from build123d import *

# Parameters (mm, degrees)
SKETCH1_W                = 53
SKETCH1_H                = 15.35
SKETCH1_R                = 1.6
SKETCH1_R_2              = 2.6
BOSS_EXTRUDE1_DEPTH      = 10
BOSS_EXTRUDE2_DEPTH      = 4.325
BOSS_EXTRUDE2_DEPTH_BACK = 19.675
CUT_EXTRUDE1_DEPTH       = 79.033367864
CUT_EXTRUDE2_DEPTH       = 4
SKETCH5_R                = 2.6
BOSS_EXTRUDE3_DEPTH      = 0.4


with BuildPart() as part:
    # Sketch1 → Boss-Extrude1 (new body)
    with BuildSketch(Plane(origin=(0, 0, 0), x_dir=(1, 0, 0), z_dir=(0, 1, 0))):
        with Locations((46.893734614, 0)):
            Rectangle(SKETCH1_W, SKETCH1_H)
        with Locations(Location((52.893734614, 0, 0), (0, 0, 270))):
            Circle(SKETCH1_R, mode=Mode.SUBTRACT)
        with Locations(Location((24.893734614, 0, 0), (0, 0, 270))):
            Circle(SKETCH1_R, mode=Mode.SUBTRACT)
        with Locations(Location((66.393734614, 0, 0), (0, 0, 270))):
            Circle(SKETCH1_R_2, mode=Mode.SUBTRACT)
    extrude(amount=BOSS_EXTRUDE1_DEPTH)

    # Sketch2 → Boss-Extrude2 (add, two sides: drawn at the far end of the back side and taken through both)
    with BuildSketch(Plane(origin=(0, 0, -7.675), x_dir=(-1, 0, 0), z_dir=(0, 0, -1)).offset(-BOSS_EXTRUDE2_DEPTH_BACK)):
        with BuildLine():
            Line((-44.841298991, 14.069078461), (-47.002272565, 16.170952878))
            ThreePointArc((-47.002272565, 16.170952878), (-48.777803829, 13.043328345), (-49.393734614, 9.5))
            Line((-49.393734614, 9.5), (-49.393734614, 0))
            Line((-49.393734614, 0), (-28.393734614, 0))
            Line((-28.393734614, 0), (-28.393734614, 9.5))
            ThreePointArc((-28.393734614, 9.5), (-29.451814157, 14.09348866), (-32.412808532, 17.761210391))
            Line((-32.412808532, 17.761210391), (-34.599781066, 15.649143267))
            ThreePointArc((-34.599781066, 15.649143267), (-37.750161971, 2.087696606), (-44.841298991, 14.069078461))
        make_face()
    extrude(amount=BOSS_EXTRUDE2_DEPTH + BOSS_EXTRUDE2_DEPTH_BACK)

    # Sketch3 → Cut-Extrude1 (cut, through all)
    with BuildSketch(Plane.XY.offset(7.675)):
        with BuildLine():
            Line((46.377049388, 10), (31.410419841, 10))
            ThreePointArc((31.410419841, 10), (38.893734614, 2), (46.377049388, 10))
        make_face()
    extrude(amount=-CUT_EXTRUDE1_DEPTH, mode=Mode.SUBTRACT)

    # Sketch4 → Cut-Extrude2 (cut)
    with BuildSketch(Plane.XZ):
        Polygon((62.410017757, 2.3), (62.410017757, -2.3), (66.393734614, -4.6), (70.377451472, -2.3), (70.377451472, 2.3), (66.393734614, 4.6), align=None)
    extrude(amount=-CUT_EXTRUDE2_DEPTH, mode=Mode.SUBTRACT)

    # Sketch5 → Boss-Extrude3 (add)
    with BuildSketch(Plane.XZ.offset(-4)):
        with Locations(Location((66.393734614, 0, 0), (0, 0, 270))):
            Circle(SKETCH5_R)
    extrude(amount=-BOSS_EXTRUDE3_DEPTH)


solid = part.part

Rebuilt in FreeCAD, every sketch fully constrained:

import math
import FreeCAD as App
import Part
import Sketcher
Q = App.Units.Quantity

doc = App.newDocument("Part")
params = doc.addObject("Spreadsheet::Sheet", "Params")
for row, (alias, value) in enumerate([
    ("sketch1_diameter", "3.2 mm"),
    ("sketch1_diameter2", "5.2 mm"),
    ("sketch1_width", "53 mm"),
    ("sketch1_height", "15.35 mm"),
    ("pad1_length", "10 mm"),
    ("sketch2_radius", "10.5 mm"),
    ("sketch2_radius2", "7.5 mm"),
    ("sketch2_height", "9.5 mm"),
    ("pad2_length", "4.325 mm"),
    ("pad2_length2", "19.675 mm"),
    ("sketch3_radius", "7.5 mm"),
    ("sketch4_height", "4.6 mm"),
    ("sketch4_length", "4.6 mm"),
    ("pocket2_length", "4 mm"),
    ("sketch5_diameter", "5.2 mm"),
    ("pad3_length", "0.4 mm"),
], start=1):
    params.set(f"A{row}", alias)
    params.set(f"B{row}", "=" + value)
    params.setAlias(f"B{row}", alias)

body = doc.addObject("PartDesign::Body", "Body")

sketch1 = doc.addObject("Sketcher::SketchObject", "Sketch")
body.addObject(sketch1)
sketch1.AttachmentSupport = (doc.XZ_Plane, [""])
sketch1.MapMode = "FlatFace"
sketch1.addGeometry(Part.LineSegment(App.Vector(20.4, -7.7, 0), App.Vector(20.4, 7.7, 0)), False)
sketch1.addGeometry(Part.LineSegment(App.Vector(20.4, 7.7, 0), App.Vector(73.4, 7.7, 0)), False)
sketch1.addGeometry(Part.LineSegment(App.Vector(73.4, 7.7, 0), App.Vector(73.4, -7.7, 0)), False)
sketch1.addGeometry(Part.LineSegment(App.Vector(73.4, -7.7, 0), App.Vector(20.4, -7.7, 0)), False)
sketch1.addGeometry(Part.Circle(App.Vector(24.9, 0, 0), App.Vector(0, 0, 1), 1.6), False)
sketch1.addGeometry(Part.Circle(App.Vector(52.9, 0, 0), App.Vector(0, 0, 1), 1.6), False)
sketch1.addGeometry(Part.Circle(App.Vector(66.4, 0, 0), App.Vector(0, 0, 1), 2.6), False)
sketch1.addConstraint(Sketcher.Constraint("Coincident", 0, 2, 1, 1))
sketch1.addConstraint(Sketcher.Constraint("Coincident", 1, 2, 2, 1))
sketch1.addConstraint(Sketcher.Constraint("Coincident", 2, 2, 3, 1))
sketch1.addConstraint(Sketcher.Constraint("Coincident", 3, 2, 0, 1))
sketch1.addConstraint(Sketcher.Constraint("Vertical", 0))
sketch1.addConstraint(Sketcher.Constraint("Horizontal", 1))
sketch1.addConstraint(Sketcher.Constraint("Vertical", 2))
sketch1.addConstraint(Sketcher.Constraint("Horizontal", 3))
sketch1.addConstraint(Sketcher.Constraint("Equal", 4, 5))
sketch1.addConstraint(Sketcher.Constraint("PointOnObject", 4, 3, -1))
sketch1.addConstraint(Sketcher.Constraint("PointOnObject", 5, 3, -1))
sketch1.addConstraint(Sketcher.Constraint("PointOnObject", 6, 3, -1))
sketch1.addConstraint(Sketcher.Constraint("Diameter", 4, Q("3.2 mm")))
sketch1.addConstraint(Sketcher.Constraint("Diameter", 6, Q("5.2 mm")))
sketch1.addConstraint(Sketcher.Constraint("DistanceX", 1, 1, 1, 2, Q("53 mm")))
sketch1.addConstraint(Sketcher.Constraint("DistanceX", 4, 3, 5, 3, Q("28 mm")))
sketch1.addConstraint(Sketcher.Constraint("DistanceX", 0, 2, 6, 3, Q("46 mm")))
sketch1.addConstraint(Sketcher.Constraint("DistanceY", 0, 1, 0, 2, Q("15.35 mm")))
sketch1.addConstraint(Sketcher.Constraint("DistanceX", 5, 3, 6, 3, Q("13.5 mm")))
sketch1.addConstraint(Sketcher.Constraint("DistanceY", -1, 1, 0, 2, Q("7.675 mm")))
sketch1.addConstraint(Sketcher.Constraint("DistanceX", -1, 1, 4, 3, Q("24.893735 mm")))
sketch1.setExpression("Constraints[12]", "Params.sketch1_diameter")
sketch1.setExpression("Constraints[13]", "Params.sketch1_diameter2")
sketch1.setExpression("Constraints[14]", "Params.sketch1_width")
sketch1.setExpression("Constraints[17]", "Params.sketch1_height")
pad1 = doc.addObject("PartDesign::Pad", "Pad")
body.addObject(pad1)
pad1.Profile = sketch1
pad1.setExpression("Length", "Params.pad1_length")
pad1.Reversed = True

sketch2 = doc.addObject("Sketcher::SketchObject", "Sketch001")
body.addObject(sketch2)
sketch2.AttachmentSupport = (doc.XY_Plane, [""])
sketch2.MapMode = "FlatFace"
sketch2.AttachmentOffset = App.Placement(App.Vector(0, 0, -7.675), App.Rotation())
sketch2.addGeometry(Part.LineSegment(App.Vector(44.8, 14.1, 0), App.Vector(47, 16.2, 0)), False)
sketch2.addGeometry(Part.ArcOfCircle(Part.Circle(App.Vector(38.9, 9.5, 0), App.Vector(0, 0, 1), 10.5), math.radians(0), math.radians(39)), False)
sketch2.addGeometry(Part.LineSegment(App.Vector(49.4, 9.5, 0), App.Vector(49.4, 0, 0)), False)
sketch2.addGeometry(Part.LineSegment(App.Vector(49.4, 0, 0), App.Vector(28.4, 0, 0)), False)
sketch2.addGeometry(Part.LineSegment(App.Vector(28.4, 0, 0), App.Vector(28.4, 9.5, 0)), False)
sketch2.addGeometry(Part.ArcOfCircle(Part.Circle(App.Vector(38.9, 9.5, 0), App.Vector(0, 0, 1), 10.5), math.radians(128), math.radians(180)), False)
sketch2.addGeometry(Part.LineSegment(App.Vector(32.4, 17.8, 0), App.Vector(34.6, 15.6, 0)), False)
sketch2.addGeometry(Part.ArcOfCircle(Part.Circle(App.Vector(38.9, 9.5, 0), App.Vector(0, 0, 1), 7.5), math.radians(125), math.radians(398)), False)
sketch2.addConstraint(Sketcher.Constraint("Coincident", 0, 2, 1, 2))
sketch2.addConstraint(Sketcher.Constraint("Tangent", 1, 1, 2, 1))
sketch2.addConstraint(Sketcher.Constraint("Coincident", 2, 2, 3, 1))
sketch2.addConstraint(Sketcher.Constraint("Coincident", 3, 2, 4, 1))
sketch2.addConstraint(Sketcher.Constraint("Tangent", 4, 2, 5, 2))
sketch2.addConstraint(Sketcher.Constraint("Coincident", 5, 1, 6, 1))
sketch2.addConstraint(Sketcher.Constraint("Coincident", 6, 2, 7, 1))
sketch2.addConstraint(Sketcher.Constraint("Coincident", 7, 2, 0, 1))
sketch2.addConstraint(Sketcher.Constraint("Vertical", 2))
sketch2.addConstraint(Sketcher.Constraint("Horizontal", 3))
sketch2.addConstraint(Sketcher.Constraint("Vertical", 4))
sketch2.addConstraint(Sketcher.Constraint("Coincident", 5, 3, 1, 3))
sketch2.addConstraint(Sketcher.Constraint("Coincident", 7, 3, 1, 3))
sketch2.addConstraint(Sketcher.Constraint("Equal", 1, 5))
sketch2.addConstraint(Sketcher.Constraint("PointOnObject", 2, 2, -1))
sketch2.addConstraint(Sketcher.Constraint("Radius", 1, Q("10.5 mm")))
sketch2.addConstraint(Sketcher.Constraint("Radius", 7, Q("7.5 mm")))
sketch2.addConstraint(Sketcher.Constraint("DistanceY", 2, 2, 2, 1, Q("9.5 mm")))
sketch2.addConstraint(Sketcher.Constraint("DistanceX", -1, 1, 7, 2, Q("44.841299 mm")))
sketch2.addConstraint(Sketcher.Constraint("Distance", 0, Q("3.014578 mm")))
sketch2.addConstraint(Sketcher.Constraint("Distance", 6, Q("3.040341 mm")))
sketch2.addConstraint(Sketcher.Constraint("DistanceX", -1, 1, 5, 1, Q("32.412809 mm")))
sketch2.addConstraint(Sketcher.Constraint("DistanceY", -1, 1, 5, 1, Q("17.76121 mm")))
sketch2.setExpression("Constraints[15]", "Params.sketch2_radius")
sketch2.setExpression("Constraints[16]", "Params.sketch2_radius2")
sketch2.setExpression("Constraints[17]", "Params.sketch2_height")
pad2 = doc.addObject("PartDesign::Pad", "Pad001")
body.addObject(pad2)
pad2.Profile = sketch2
pad2.Type = "TwoLengths"
pad2.setExpression("Length", "Params.pad2_length")
pad2.setExpression("Length2", "Params.pad2_length2")
pad2.Reversed = True

sketch3 = doc.addObject("Sketcher::SketchObject", "Sketch002")
body.addObject(sketch3)
sketch3.AttachmentSupport = (doc.XY_Plane, [""])
sketch3.MapMode = "FlatFace"
sketch3.AttachmentOffset = App.Placement(App.Vector(0, 0, 7.675), App.Rotation())
sketch3.addGeometry(Part.LineSegment(App.Vector(46, 10, 0), App.Vector(31, 10, 0)), False)
sketch3.addGeometry(Part.ArcOfCircle(Part.Circle(App.Vector(39, 10, 0), App.Vector(0, 0, 1), 8), math.radians(176), math.radians(364)), False)
sketch3.addConstraint(Sketcher.Constraint("Coincident", 0, 1, 1, 2))
sketch3.addConstraint(Sketcher.Constraint("Coincident", 1, 1, 0, 2))
sketch3.addConstraint(Sketcher.Constraint("Horizontal", 0))
sketch3.addConstraint(Sketcher.Constraint("Radius", 1, Q("7.5 mm")))
sketch3.addConstraint(Sketcher.Constraint("DistanceY", -1, 1, 0, 1, Q("10 mm")))
sketch3.addConstraint(Sketcher.Constraint("DistanceY", -1, 1, 1, 3, Q("9.5 mm")))
sketch3.addConstraint(Sketcher.Constraint("DistanceX", -1, 1, 0, 1, Q("46.377049 mm")))
sketch3.setExpression("Constraints[3]", "Params.sketch3_radius")
pocket1 = doc.addObject("PartDesign::Pocket", "Pocket")
body.addObject(pocket1)
pocket1.Profile = sketch3
pocket1.Type = "ThroughAll"

sketch4 = doc.addObject("Sketcher::SketchObject", "Sketch003")
body.addObject(sketch4)
sketch4.AttachmentSupport = (doc.XZ_Plane, [""])
sketch4.MapMode = "FlatFace"
sketch4.addGeometry(Part.LineSegment(App.Vector(62.4, 2.3, 0), App.Vector(62.4, -2.3, 0)), False)
sketch4.addGeometry(Part.LineSegment(App.Vector(62.4, -2.3, 0), App.Vector(66.4, -4.6, 0)), False)
sketch4.addGeometry(Part.LineSegment(App.Vector(66.4, -4.6, 0), App.Vector(70.4, -2.3, 0)), False)
sketch4.addGeometry(Part.LineSegment(App.Vector(70.4, -2.3, 0), App.Vector(70.4, 2.3, 0)), False)
sketch4.addGeometry(Part.LineSegment(App.Vector(70.4, 2.3, 0), App.Vector(66.4, 4.6, 0)), False)
sketch4.addGeometry(Part.LineSegment(App.Vector(66.4, 4.6, 0), App.Vector(62.4, 2.3, 0)), False)
sketch4.addConstraint(Sketcher.Constraint("Coincident", 0, 2, 1, 1))
sketch4.addConstraint(Sketcher.Constraint("Coincident", 1, 2, 2, 1))
sketch4.addConstraint(Sketcher.Constraint("Coincident", 2, 2, 3, 1))
sketch4.addConstraint(Sketcher.Constraint("Coincident", 3, 2, 4, 1))
sketch4.addConstraint(Sketcher.Constraint("Coincident", 4, 2, 5, 1))
sketch4.addConstraint(Sketcher.Constraint("Coincident", 5, 2, 0, 1))
sketch4.addConstraint(Sketcher.Constraint("Vertical", 0))
sketch4.addConstraint(Sketcher.Constraint("Vertical", 3))
sketch4.addConstraint(Sketcher.Constraint("Symmetric", 1, 2, 4, 2, -1))
sketch4.addConstraint(Sketcher.Constraint("Parallel", 1, 4))
sketch4.addConstraint(Sketcher.Constraint("Parallel", 2, 5))
sketch4.addConstraint(Sketcher.Constraint("Horizontal", 0, 2, 2, 2))
sketch4.addConstraint(Sketcher.Constraint("Horizontal", 3, 2, 5, 2))
sketch4.addConstraint(Sketcher.Constraint("Angle", 1, Q("-30 deg")))
sketch4.addConstraint(Sketcher.Constraint("DistanceY", 0, 2, 0, 1, Q("4.6 mm")))
sketch4.addConstraint(Sketcher.Constraint("Distance", 1, Q("4.6 mm")))
sketch4.addConstraint(Sketcher.Constraint("DistanceX", -1, 1, 2, 2, Q("70.377451 mm")))
sketch4.setExpression("Constraints[14]", "Params.sketch4_height")
sketch4.setExpression("Constraints[15]", "Params.sketch4_length")
pocket2 = doc.addObject("PartDesign::Pocket", "Pocket001")
body.addObject(pocket2)
pocket2.Profile = sketch4
pocket2.setExpression("Length", "Params.pocket2_length")

sketch5 = doc.addObject("Sketcher::SketchObject", "Sketch004")
body.addObject(sketch5)
sketch5.AttachmentSupport = (doc.XZ_Plane, [""])
sketch5.MapMode = "FlatFace"
sketch5.AttachmentOffset = App.Placement(App.Vector(0, 0, -4), App.Rotation())
sketch5.addGeometry(Part.Circle(App.Vector(66.4, 0, 0), App.Vector(0, 0, 1), 2.6), False)
sketch5.addConstraint(Sketcher.Constraint("PointOnObject", 0, 3, -1))
sketch5.addConstraint(Sketcher.Constraint("Diameter", 0, Q("5.2 mm")))
sketch5.addConstraint(Sketcher.Constraint("DistanceX", -1, 1, 0, 3, Q("66.393735 mm")))
sketch5.setExpression("Constraints[1]", "Params.sketch5_diameter")
pad3 = doc.addObject("PartDesign::Pad", "Pad002")
body.addObject(pad3)
pad3.Profile = sketch5
pad3.setExpression("Length", "Params.pad3_length")
pad3.Reversed = True

doc.recompute()
